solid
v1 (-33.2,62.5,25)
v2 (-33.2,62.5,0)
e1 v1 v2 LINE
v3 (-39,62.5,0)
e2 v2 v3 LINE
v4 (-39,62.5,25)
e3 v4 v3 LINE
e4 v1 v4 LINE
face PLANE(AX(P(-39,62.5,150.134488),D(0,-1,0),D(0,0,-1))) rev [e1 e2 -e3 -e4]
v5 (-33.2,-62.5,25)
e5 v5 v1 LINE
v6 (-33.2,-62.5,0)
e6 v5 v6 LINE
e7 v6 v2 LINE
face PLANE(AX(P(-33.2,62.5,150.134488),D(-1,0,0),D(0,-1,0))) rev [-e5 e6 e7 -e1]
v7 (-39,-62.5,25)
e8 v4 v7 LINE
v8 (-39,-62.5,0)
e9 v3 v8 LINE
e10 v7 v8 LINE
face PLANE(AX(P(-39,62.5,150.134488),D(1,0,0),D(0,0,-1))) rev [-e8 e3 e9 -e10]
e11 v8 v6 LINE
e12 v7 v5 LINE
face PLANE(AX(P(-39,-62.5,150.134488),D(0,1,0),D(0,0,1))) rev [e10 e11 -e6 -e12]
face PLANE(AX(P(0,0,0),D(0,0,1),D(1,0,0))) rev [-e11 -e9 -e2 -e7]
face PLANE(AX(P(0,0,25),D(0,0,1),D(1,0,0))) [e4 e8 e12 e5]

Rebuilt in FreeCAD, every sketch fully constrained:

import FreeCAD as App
import Part
import Sketcher
from FreeCAD import Vector
Q = App.Units.Quantity


def add_polygon(sketch, points):
    """Adds a closed chain of lines whose ends are joined by coincident constraints."""
    first, n = sketch.GeometryCount, len(points)
    for a, b in zip(points, points[1:] + points[:1]):
        sketch.addGeometry(Part.LineSegment(App.Vector(*a, 0), App.Vector(*b, 0)), False)
    for i in range(n):
        sketch.addConstraint(Sketcher.Constraint("Coincident", first + i, 2, first + (i + 1) % n, 1))

doc = App.newDocument("Part")
body = doc.addObject("PartDesign::Body", "Body")

sketch1 = body.newObject("Sketcher::SketchObject", "Sketch")
sketch1.AttachmentSupport = (doc.getObject("XY_Plane"), [""])
sketch1.MapMode = "FlatFace"
add_polygon(sketch1, [(-39, 62), (-39, -62), (-33, -62), (-33, 62)])
sketch1.addConstraint([
    Sketcher.Constraint("Vertical", 0),
    Sketcher.Constraint("Horizontal", 1),
    Sketcher.Constraint("Vertical", 2),
    Sketcher.Constraint("Horizontal", 3),
    Sketcher.Constraint("DistanceY", 0, 2, 0, 1, Q("125 mm")),
    Sketcher.Constraint("DistanceX", 1, 1, 1, 2, Q("5.8 mm")),
    Sketcher.Constraint("DistanceX", 0, 2, -1, 1, Q("39 mm")),
    Sketcher.Constraint("DistanceY", 0, 2, -1, 1, Q("62.5 mm")),
])
pad1 = body.newObject("PartDesign::Pad", "Pad")
pad1.Profile = sketch1
pad1.Length = 25

doc.recompute()
